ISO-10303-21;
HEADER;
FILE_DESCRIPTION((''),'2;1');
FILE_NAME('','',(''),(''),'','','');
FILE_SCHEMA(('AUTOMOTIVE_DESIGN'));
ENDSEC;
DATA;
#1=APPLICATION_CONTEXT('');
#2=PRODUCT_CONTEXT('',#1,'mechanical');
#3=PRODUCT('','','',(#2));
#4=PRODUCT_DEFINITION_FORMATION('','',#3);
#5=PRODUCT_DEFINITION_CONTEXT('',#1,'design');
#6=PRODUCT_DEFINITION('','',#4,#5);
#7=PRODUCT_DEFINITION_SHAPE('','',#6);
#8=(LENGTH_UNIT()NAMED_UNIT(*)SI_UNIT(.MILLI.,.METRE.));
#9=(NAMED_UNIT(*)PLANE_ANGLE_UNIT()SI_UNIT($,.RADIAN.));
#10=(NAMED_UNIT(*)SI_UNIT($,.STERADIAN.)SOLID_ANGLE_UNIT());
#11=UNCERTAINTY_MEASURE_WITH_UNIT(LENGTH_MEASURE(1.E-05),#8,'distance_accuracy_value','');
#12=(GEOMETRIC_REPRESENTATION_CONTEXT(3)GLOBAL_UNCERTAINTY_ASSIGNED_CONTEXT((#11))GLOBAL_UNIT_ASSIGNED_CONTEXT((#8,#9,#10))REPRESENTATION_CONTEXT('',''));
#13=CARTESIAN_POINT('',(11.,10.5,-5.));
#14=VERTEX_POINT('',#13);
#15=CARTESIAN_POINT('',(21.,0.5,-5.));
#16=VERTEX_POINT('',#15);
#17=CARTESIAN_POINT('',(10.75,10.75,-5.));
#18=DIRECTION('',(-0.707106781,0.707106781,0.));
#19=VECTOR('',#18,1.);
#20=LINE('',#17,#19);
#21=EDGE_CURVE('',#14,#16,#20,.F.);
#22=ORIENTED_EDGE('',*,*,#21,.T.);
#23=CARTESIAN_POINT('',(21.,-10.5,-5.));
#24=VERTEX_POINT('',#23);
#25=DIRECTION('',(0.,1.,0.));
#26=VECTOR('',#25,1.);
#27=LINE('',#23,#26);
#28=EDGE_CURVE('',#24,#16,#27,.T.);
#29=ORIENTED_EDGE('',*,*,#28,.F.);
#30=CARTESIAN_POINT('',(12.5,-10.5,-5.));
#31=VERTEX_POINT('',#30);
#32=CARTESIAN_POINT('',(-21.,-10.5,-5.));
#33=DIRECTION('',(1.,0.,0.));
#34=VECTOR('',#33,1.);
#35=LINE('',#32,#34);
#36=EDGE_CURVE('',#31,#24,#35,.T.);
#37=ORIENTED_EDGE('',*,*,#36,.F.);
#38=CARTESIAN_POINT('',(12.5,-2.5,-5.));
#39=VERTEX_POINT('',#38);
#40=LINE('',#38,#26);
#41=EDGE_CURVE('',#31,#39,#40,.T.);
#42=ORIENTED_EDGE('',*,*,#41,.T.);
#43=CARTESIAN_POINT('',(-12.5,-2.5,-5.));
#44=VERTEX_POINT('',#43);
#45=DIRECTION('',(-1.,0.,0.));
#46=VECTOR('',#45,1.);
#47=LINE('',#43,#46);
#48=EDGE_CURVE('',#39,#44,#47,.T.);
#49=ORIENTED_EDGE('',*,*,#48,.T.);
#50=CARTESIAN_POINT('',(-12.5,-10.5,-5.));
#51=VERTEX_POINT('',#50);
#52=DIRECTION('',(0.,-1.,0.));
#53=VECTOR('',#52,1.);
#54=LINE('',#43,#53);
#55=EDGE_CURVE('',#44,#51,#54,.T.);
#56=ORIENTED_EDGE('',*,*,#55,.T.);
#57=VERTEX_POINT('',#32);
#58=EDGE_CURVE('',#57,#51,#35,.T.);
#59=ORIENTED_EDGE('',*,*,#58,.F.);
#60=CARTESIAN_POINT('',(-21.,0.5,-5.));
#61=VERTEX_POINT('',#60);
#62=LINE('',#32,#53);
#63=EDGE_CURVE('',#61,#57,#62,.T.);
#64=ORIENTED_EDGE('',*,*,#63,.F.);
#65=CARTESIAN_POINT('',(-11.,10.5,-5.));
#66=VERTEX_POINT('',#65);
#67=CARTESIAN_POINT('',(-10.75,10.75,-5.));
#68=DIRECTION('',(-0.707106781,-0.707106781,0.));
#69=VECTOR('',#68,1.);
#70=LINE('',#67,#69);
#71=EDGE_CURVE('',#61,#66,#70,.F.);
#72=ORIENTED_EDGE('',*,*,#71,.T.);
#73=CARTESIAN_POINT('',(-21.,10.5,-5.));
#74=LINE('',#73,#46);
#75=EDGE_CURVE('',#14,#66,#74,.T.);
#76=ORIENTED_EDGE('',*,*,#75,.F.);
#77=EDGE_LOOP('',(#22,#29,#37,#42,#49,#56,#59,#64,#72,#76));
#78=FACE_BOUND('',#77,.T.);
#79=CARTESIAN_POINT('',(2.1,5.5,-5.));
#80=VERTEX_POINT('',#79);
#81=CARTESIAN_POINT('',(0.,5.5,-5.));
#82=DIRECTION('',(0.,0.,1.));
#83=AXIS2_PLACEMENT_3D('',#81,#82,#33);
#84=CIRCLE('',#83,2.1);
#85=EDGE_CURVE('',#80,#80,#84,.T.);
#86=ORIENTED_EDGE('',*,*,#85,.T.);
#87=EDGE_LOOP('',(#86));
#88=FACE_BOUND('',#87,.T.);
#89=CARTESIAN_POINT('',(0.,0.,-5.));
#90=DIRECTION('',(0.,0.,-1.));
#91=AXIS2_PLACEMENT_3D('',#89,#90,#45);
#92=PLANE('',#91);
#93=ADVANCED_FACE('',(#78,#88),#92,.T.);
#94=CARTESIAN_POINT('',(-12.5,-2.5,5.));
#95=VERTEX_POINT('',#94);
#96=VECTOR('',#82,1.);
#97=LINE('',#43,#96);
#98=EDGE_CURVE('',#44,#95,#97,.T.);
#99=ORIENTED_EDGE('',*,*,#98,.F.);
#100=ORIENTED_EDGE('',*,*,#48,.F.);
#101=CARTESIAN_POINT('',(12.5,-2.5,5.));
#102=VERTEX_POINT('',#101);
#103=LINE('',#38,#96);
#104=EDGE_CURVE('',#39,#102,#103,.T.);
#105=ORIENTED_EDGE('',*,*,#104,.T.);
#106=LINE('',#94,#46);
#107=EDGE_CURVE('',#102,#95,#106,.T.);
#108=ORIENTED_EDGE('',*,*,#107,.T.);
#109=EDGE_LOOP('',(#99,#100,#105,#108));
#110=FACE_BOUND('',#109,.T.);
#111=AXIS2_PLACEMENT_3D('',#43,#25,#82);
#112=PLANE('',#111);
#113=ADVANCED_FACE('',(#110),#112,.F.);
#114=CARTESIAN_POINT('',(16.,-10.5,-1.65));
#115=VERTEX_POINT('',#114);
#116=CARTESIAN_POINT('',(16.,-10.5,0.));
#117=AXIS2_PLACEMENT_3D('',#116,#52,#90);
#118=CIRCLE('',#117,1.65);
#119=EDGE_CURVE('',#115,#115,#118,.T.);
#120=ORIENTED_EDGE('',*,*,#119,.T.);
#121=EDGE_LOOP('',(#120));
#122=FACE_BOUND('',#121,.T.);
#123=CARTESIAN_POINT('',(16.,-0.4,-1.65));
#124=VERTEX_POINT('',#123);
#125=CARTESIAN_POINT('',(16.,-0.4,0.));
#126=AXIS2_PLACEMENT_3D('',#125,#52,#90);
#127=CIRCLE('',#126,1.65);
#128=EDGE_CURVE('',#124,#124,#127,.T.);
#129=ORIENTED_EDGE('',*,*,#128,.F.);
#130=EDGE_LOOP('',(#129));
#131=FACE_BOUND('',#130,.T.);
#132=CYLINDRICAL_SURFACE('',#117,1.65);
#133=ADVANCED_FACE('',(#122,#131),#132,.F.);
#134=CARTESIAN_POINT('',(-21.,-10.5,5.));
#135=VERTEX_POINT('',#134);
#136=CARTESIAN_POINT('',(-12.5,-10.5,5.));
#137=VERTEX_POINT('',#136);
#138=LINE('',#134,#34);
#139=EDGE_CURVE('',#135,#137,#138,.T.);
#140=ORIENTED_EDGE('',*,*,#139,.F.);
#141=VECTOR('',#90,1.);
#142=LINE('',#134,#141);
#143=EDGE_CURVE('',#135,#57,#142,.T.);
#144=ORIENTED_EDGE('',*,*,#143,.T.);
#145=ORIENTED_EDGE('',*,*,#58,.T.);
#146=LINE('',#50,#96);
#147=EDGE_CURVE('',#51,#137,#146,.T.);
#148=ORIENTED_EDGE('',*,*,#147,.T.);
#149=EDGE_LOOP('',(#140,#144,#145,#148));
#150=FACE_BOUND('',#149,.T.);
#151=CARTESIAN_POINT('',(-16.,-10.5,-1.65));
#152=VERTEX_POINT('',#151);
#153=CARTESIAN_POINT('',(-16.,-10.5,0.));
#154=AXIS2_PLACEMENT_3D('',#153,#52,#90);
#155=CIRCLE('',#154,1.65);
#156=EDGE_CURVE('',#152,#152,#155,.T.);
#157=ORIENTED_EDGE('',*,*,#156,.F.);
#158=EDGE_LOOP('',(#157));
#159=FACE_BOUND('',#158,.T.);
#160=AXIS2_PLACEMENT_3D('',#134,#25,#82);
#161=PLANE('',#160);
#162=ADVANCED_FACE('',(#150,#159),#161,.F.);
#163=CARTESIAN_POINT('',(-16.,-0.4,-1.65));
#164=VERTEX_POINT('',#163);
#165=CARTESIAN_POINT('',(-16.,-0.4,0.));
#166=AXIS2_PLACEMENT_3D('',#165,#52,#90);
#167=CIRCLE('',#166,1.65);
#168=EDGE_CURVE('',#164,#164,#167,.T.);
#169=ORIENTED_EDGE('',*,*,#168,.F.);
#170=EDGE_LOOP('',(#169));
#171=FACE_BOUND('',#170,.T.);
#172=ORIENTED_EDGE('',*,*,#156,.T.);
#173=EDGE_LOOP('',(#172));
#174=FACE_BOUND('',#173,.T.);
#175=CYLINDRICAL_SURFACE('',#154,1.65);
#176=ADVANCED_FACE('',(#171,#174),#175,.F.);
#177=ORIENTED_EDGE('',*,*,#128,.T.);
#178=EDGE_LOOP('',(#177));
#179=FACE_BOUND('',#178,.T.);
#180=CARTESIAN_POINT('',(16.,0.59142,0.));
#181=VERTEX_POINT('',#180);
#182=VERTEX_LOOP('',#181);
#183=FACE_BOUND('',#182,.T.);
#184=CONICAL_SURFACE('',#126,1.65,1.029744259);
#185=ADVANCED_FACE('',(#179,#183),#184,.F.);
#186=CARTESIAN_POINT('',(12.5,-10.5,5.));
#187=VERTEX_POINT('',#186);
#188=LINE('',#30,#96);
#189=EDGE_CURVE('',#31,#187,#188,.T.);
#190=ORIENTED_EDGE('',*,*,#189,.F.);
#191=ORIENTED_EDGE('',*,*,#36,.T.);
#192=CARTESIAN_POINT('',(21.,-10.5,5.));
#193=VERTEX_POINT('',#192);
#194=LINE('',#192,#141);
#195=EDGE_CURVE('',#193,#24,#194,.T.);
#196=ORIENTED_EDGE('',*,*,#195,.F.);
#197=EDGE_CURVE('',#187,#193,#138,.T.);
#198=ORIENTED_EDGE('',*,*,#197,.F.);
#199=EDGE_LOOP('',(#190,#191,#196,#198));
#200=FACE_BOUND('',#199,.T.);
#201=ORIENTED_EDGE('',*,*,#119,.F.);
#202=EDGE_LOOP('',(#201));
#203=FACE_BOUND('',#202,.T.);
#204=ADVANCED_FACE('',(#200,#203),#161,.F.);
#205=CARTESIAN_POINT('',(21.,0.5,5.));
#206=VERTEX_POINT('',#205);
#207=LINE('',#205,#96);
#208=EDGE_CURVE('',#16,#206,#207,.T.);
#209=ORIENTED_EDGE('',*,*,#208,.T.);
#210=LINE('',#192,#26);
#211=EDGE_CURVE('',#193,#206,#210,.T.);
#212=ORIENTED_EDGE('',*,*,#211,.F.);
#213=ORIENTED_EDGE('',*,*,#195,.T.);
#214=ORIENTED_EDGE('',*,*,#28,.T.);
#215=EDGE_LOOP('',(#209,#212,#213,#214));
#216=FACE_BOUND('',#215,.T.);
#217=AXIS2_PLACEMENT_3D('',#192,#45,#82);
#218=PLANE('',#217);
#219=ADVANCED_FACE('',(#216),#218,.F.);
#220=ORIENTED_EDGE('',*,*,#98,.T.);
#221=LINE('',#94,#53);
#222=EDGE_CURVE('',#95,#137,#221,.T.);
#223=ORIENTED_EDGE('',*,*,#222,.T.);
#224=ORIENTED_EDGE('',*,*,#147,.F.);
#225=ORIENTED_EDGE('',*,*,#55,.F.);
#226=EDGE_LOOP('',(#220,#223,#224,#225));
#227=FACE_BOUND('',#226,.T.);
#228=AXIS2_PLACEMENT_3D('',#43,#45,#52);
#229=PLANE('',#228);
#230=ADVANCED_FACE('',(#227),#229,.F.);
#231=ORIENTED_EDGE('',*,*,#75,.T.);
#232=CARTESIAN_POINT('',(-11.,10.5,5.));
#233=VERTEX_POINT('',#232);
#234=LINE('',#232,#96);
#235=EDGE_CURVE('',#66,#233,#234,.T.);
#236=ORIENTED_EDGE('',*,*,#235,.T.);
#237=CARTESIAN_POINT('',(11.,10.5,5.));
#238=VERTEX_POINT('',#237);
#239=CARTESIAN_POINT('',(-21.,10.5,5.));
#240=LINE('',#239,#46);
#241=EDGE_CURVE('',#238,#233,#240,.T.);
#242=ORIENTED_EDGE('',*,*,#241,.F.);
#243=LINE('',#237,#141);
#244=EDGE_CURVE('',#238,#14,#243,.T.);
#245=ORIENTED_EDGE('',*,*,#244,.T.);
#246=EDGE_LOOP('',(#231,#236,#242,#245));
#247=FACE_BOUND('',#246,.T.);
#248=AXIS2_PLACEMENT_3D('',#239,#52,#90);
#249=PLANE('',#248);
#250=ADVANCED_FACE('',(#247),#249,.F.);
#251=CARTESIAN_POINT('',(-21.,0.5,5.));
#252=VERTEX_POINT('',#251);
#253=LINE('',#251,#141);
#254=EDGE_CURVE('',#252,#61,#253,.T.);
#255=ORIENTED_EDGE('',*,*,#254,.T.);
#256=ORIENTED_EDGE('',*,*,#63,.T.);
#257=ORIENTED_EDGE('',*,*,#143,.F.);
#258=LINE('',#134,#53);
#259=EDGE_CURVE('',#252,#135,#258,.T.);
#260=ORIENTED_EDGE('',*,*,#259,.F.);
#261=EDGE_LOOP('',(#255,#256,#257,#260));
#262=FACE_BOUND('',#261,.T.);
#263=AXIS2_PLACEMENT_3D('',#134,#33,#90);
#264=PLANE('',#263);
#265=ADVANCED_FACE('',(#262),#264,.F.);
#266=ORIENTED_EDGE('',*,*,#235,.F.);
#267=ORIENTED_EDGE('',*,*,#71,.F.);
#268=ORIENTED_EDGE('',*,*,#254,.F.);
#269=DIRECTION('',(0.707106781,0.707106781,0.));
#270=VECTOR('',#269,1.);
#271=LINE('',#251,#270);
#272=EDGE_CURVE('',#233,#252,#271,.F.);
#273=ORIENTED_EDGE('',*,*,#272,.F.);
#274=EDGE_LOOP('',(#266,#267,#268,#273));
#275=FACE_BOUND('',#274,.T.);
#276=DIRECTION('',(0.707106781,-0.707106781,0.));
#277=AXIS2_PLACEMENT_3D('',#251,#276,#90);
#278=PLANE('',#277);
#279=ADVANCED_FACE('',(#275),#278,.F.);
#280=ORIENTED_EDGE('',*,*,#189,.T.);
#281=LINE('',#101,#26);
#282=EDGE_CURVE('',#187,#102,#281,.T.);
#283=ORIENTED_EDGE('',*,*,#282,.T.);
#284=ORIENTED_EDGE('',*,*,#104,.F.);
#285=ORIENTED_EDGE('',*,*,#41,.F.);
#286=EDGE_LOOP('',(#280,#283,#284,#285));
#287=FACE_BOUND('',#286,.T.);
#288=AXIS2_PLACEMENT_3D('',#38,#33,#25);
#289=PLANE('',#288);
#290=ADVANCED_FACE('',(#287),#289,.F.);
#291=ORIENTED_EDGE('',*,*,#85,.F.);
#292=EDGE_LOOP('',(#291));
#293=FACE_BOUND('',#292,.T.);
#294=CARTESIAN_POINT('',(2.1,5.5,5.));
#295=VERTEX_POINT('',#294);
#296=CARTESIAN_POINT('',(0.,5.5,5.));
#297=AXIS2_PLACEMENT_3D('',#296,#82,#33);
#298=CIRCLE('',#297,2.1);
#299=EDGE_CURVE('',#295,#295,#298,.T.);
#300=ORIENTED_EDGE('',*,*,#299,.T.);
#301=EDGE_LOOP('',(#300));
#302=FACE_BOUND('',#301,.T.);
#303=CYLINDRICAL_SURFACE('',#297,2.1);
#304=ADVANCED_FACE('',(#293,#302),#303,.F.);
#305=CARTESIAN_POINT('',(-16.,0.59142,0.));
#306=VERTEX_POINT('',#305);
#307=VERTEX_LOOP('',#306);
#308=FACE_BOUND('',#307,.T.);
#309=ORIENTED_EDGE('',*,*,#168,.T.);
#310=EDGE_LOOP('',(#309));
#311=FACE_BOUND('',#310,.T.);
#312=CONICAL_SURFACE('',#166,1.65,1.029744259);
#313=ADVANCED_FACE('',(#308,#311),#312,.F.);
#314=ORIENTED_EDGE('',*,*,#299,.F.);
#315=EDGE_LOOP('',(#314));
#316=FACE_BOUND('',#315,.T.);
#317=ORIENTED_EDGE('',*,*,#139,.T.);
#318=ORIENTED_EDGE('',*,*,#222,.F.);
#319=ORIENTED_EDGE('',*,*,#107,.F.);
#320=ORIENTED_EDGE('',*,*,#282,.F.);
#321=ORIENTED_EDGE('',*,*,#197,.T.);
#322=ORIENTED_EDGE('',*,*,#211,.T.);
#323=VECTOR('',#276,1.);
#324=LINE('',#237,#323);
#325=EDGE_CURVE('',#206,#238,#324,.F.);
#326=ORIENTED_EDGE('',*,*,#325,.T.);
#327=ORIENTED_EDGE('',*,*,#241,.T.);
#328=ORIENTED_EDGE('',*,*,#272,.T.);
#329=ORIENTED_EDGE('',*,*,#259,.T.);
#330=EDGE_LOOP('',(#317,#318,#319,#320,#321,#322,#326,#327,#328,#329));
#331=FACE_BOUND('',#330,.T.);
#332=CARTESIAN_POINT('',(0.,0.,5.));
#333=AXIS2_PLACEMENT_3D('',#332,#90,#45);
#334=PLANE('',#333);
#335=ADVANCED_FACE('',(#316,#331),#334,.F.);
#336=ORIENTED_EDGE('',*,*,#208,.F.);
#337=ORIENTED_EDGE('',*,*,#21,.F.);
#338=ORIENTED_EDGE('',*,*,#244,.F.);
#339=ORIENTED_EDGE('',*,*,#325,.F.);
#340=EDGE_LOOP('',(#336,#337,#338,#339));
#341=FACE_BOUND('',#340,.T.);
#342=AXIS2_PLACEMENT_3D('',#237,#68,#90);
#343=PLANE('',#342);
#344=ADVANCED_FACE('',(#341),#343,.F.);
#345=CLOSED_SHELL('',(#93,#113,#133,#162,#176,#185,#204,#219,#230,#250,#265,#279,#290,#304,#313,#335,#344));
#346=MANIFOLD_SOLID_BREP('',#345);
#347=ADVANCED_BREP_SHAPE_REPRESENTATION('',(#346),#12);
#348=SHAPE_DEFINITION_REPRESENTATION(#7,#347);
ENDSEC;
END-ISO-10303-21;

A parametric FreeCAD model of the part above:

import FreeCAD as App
import Part
import Sketcher
from FreeCAD import Vector


def edges_at(feature, points):
    """Names of the edges that pass closest to the given points."""
    edges = feature.Shape.Edges
    near = lambda p: min(range(len(edges)), key=lambda i: edges[i].distToShape(Part.Vertex(*p))[0])
    return sorted({f"Edge{near(p) + 1}" for p in points})


def add_polygon(sketch, points):
    """Adds a closed chain of lines whose ends are joined by coincident constraints."""
    first, n = sketch.GeometryCount, len(points)
    for a, b in zip(points, points[1:] + points[:1]):
        sketch.addGeometry(Part.LineSegment(App.Vector(*a, 0), App.Vector(*b, 0)), False)
    for i in range(n):
        sketch.addConstraint(Sketcher.Constraint("Coincident", first + i, 2, first + (i + 1) % n, 1))

doc = App.newDocument("Part")
body = doc.addObject("PartDesign::Body", "Body")

sketch1 = body.newObject("Sketcher::SketchObject", "Sketch")
sketch1.AttachmentSupport = (doc.getObject("XY_Plane"), [""])
sketch1.MapMode = "FlatFace"
add_polygon(sketch1, [(-21, 10), (-21, -10), (21, -10), (21, 10)])
sketch1.addConstraint([
    Sketcher.Constraint("Vertical", 0),
    Sketcher.Constraint("Horizontal", 1),
    Sketcher.Constraint("Vertical", 2),
    Sketcher.Constraint("Horizontal", 3),
    Sketcher.Constraint("Symmetric", 0, 2, 2, 2, -1, 1),
    Sketcher.Constraint("DistanceX", 1, 1, 1, 2, 42.0),
    Sketcher.Constraint("DistanceY", 0, 2, 0, 1, 21.0),
])
pad1 = body.newObject("PartDesign::Pad", "Pad")
pad1.Profile = sketch1
pad1.Length = 10
pad1.Midplane = True

sketch2 = body.newObject("Sketcher::SketchObject", "Sketch001")
sketch2.AttachmentSupport = (doc.getObject("XY_Plane"), [""])
sketch2.MapMode = "FlatFace"
sketch2.AttachmentOffset = App.Placement(Vector(0, 0, 5), App.Rotation())
add_polygon(sketch2, [(-12, -2), (-12, -10), (12, -10), (12, -2)])
sketch2.addConstraint([
    Sketcher.Constraint("Vertical", 0),
    Sketcher.Constraint("Horizontal", 1),
    Sketcher.Constraint("Vertical", 2),
    Sketcher.Constraint("Horizontal", 3),
    Sketcher.Constraint("DistanceX", 1, 1, 1, 2, 25.0),
    Sketcher.Constraint("DistanceY", 0, 2, 0, 1, 8.0),
    Sketcher.Constraint("DistanceX", 0, 2, -1, 1, 12.5),
    Sketcher.Constraint("DistanceY", 0, 2, -1, 1, 10.5),
])
pocket1 = body.newObject("PartDesign::Pocket", "Pocket")
pocket1.Profile = sketch2
pocket1.Type = "ThroughAll"

sketch3 = body.newObject("Sketcher::SketchObject", "Sketch002")
sketch3.AttachmentSupport = (doc.getObject("XZ_Plane"), [""])
sketch3.MapMode = "FlatFace"
sketch3.AttachmentOffset = App.Placement(Vector(0, 0, 10.5), App.Rotation())
sketch3.addGeometry([
    Part.Circle(Vector(-16, 0, 0), Vector(0, 0, 1), 1.6),
    Part.Circle(Vector(16, 0, 0), Vector(0, 0, 1), 1.6),
], False)
sketch3.addConstraint([
    Sketcher.Constraint("Equal", 0, 1),
    Sketcher.Constraint("Symmetric", 0, 3, 1, 3, -1, 1),
    Sketcher.Constraint("PointOnObject", 0, 3, -1),
    Sketcher.Constraint("Diameter", 0, 3.3),
    Sketcher.Constraint("DistanceX", 0, 3, -1, 1, 16.0),
])
doc.recompute()
hole = body.newObject("PartDesign::Hole", "Hole")
hole.Profile = sketch3
hole.ThreadType = "None"
hole.Diameter = 3.3
hole.DepthType = "Dimension"
hole.Depth = 10.1
hole.DrillPoint = "Angled"
hole.DrillPointAngle = 118

sketch4 = body.newObject("Sketcher::SketchObject", "Sketch003")
sketch4.AttachmentSupport = (doc.getObject("XY_Plane"), [""])
sketch4.MapMode = "FlatFace"
sketch4.AttachmentOffset = App.Placement(Vector(0, 0, 5), App.Rotation())
sketch4.addGeometry(Part.Circle(Vector(0, 5.5, 0), Vector(0, 0, 1), 2.1), False)
sketch4.addConstraint([
    Sketcher.Constraint("PointOnObject", 0, 3, -2),
    Sketcher.Constraint("Diameter", 0, 4.2),
    Sketcher.Constraint("DistanceY", -1, 1, 0, 3, 5.5),
])
doc.recompute()
hole2 = body.newObject("PartDesign::Hole", "Hole001")
hole2.Profile = sketch4
hole2.ThreadType = "None"
hole2.Diameter = 4.2
hole2.DepthType = "ThroughAll"
doc.recompute()

chamfer = body.newObject("PartDesign::Chamfer", "Chamfer")
chamfer.Base = (hole2, edges_at(hole2, [(-21, 10.5, 0), (21, 10.5, 0)]))
chamfer.Size = 10

doc.recompute()
